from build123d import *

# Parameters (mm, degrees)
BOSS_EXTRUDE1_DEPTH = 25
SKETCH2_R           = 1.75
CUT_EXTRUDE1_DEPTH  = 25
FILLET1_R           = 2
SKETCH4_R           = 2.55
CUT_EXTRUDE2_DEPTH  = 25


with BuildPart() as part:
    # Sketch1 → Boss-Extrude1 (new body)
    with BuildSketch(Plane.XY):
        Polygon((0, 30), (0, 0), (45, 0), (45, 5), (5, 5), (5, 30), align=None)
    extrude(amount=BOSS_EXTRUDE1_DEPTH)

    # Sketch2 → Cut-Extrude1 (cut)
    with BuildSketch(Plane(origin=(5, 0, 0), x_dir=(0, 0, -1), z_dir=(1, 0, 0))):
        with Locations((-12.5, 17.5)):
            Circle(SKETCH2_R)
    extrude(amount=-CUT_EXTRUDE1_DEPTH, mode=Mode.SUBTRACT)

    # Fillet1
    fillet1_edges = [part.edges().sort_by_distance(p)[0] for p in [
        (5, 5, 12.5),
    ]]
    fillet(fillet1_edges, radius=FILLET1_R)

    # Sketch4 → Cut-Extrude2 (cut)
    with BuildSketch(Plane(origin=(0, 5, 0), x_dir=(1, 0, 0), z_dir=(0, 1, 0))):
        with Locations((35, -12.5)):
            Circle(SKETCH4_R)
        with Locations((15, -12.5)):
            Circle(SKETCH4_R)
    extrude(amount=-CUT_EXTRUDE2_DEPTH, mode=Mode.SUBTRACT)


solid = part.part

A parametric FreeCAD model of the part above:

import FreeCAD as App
import Part
import Sketcher
from FreeCAD import Vector
Q = App.Units.Quantity


def edges_at(feature, points):
    """Names of the edges that pass closest to the given points."""
    edges = feature.Shape.Edges
    near = lambda p: min(range(len(edges)), key=lambda i: edges[i].distToShape(Part.Vertex(*p))[0])
    return sorted({f"Edge{near(p) + 1}" for p in points})

doc = App.newDocument("Part")
body = doc.addObject("PartDesign::Body", "Body")

# Sketch on XY plane
sketch1 = doc.addObject("Sketcher::SketchObject", "Sketch")
body.addObject(sketch1)
sketch1.AttachmentSupport = (doc.XY_Plane, [""])
sketch1.MapMode = "FlatFace"
sketch1.addGeometry([
    Part.LineSegment(Vector(0, 30, 0), Vector(0, 0, 0)),  # 0
    Part.LineSegment(Vector(0, 0, 0), Vector(45, 0, 0)),  # 1
    Part.LineSegment(Vector(45, 0, 0), Vector(45, 5, 0)),  # 2
    Part.LineSegment(Vector(45, 5, 0), Vector(5, 5, 0)),  # 3
    Part.LineSegment(Vector(5, 5, 0), Vector(5, 30, 0)),  # 4
    Part.LineSegment(Vector(5, 30, 0), Vector(0, 30, 0)),  # 5
], False)
sketch1.addConstraint([
    Sketcher.Constraint("Coincident", 0, 2, 1, 1),
    Sketcher.Constraint("Coincident", 1, 2, 2, 1),
    Sketcher.Constraint("Coincident", 2, 2, 3, 1),
    Sketcher.Constraint("Coincident", 3, 2, 4, 1),
    Sketcher.Constraint("Coincident", 4, 2, 5, 1),
    Sketcher.Constraint("Coincident", 5, 2, 0, 1),
    Sketcher.Constraint("Vertical", 0),
    Sketcher.Constraint("Horizontal", 1),
    Sketcher.Constraint("Vertical", 2),
    Sketcher.Constraint("Horizontal", 3),
    Sketcher.Constraint("Vertical", 4),
    Sketcher.Constraint("Horizontal", 5),
    Sketcher.Constraint("Coincident", 0, 2, -1, 1),
    Sketcher.Constraint("Equal", 5, 2),
    Sketcher.Constraint("DistanceX", 1, 1, 1, 2, Q("45 mm")),
    Sketcher.Constraint("DistanceX", 3, 2, 3, 1, Q("40 mm")),
    Sketcher.Constraint("DistanceY", 0, 2, 0, 1, Q("30 mm")),
])
pad1 = doc.addObject("PartDesign::Pad", "Pad")
body.addObject(pad1)
pad1.Profile = sketch1
pad1.Length = 25

# Sketch on YZ plane
sketch2 = doc.addObject("Sketcher::SketchObject", "Sketch001")
body.addObject(sketch2)
sketch2.AttachmentSupport = (doc.YZ_Plane, [""])
sketch2.MapMode = "FlatFace"
sketch2.AttachmentOffset = App.Placement(Vector(0, 0, 5), App.Rotation())
sketch2.addGeometry(Part.Circle(Vector(17.5, 12.5, 0), Vector(0, 0, 1), 1.8), False)
sketch2.addConstraint([
    Sketcher.Constraint("Diameter", 0, Q("3.5 mm")),
    Sketcher.Constraint("DistanceX", -1, 1, 0, 3, Q("17.5 mm")),
    Sketcher.Constraint("DistanceY", -1, 1, 0, 3, Q("12.5 mm")),
])
pocket1 = doc.addObject("PartDesign::Pocket", "Pocket")
body.addObject(pocket1)
pocket1.Profile = sketch2
pocket1.Length = 25
doc.recompute()

fillet = doc.addObject("PartDesign::Fillet", "Fillet")
body.addObject(fillet)
fillet.Base = (pocket1, edges_at(pocket1, [(5, 5, 12.5)]))
fillet.Radius = 2

# Sketch on XZ plane
sketch3 = doc.addObject("Sketcher::SketchObject", "Sketch002")
body.addObject(sketch3)
sketch3.AttachmentSupport = (doc.XZ_Plane, [""])
sketch3.MapMode = "FlatFace"
sketch3.AttachmentOffset = App.Placement(Vector(0, 0, -5), App.Rotation())
sketch3.addGeometry([
    Part.Circle(Vector(35, 12.5, 0), Vector(0, 0, 1), 2.5),
    Part.Circle(Vector(15, 12.5, 0), Vector(0, 0, 1), 2.5),
], False)
sketch3.addConstraint([
    Sketcher.Constraint("Equal", 0, 1),
    Sketcher.Constraint("Horizontal", 0, 3, 1, 3),
    Sketcher.Constraint("Diameter", 0, Q("5.1 mm")),
    Sketcher.Constraint("DistanceX", -1, 1, 0, 3, Q("35 mm")),
    Sketcher.Constraint("DistanceX", -1, 1, 1, 3, Q("15 mm")),
    Sketcher.Constraint("DistanceY", -1, 1, 0, 3, Q("12.5 mm")),
])
pocket2 = doc.addObject("PartDesign::Pocket", "Pocket001")
body.addObject(pocket2)
pocket2.Profile = sketch3
pocket2.Length = 25
pocket2.Reversed = True

doc.recompute()
